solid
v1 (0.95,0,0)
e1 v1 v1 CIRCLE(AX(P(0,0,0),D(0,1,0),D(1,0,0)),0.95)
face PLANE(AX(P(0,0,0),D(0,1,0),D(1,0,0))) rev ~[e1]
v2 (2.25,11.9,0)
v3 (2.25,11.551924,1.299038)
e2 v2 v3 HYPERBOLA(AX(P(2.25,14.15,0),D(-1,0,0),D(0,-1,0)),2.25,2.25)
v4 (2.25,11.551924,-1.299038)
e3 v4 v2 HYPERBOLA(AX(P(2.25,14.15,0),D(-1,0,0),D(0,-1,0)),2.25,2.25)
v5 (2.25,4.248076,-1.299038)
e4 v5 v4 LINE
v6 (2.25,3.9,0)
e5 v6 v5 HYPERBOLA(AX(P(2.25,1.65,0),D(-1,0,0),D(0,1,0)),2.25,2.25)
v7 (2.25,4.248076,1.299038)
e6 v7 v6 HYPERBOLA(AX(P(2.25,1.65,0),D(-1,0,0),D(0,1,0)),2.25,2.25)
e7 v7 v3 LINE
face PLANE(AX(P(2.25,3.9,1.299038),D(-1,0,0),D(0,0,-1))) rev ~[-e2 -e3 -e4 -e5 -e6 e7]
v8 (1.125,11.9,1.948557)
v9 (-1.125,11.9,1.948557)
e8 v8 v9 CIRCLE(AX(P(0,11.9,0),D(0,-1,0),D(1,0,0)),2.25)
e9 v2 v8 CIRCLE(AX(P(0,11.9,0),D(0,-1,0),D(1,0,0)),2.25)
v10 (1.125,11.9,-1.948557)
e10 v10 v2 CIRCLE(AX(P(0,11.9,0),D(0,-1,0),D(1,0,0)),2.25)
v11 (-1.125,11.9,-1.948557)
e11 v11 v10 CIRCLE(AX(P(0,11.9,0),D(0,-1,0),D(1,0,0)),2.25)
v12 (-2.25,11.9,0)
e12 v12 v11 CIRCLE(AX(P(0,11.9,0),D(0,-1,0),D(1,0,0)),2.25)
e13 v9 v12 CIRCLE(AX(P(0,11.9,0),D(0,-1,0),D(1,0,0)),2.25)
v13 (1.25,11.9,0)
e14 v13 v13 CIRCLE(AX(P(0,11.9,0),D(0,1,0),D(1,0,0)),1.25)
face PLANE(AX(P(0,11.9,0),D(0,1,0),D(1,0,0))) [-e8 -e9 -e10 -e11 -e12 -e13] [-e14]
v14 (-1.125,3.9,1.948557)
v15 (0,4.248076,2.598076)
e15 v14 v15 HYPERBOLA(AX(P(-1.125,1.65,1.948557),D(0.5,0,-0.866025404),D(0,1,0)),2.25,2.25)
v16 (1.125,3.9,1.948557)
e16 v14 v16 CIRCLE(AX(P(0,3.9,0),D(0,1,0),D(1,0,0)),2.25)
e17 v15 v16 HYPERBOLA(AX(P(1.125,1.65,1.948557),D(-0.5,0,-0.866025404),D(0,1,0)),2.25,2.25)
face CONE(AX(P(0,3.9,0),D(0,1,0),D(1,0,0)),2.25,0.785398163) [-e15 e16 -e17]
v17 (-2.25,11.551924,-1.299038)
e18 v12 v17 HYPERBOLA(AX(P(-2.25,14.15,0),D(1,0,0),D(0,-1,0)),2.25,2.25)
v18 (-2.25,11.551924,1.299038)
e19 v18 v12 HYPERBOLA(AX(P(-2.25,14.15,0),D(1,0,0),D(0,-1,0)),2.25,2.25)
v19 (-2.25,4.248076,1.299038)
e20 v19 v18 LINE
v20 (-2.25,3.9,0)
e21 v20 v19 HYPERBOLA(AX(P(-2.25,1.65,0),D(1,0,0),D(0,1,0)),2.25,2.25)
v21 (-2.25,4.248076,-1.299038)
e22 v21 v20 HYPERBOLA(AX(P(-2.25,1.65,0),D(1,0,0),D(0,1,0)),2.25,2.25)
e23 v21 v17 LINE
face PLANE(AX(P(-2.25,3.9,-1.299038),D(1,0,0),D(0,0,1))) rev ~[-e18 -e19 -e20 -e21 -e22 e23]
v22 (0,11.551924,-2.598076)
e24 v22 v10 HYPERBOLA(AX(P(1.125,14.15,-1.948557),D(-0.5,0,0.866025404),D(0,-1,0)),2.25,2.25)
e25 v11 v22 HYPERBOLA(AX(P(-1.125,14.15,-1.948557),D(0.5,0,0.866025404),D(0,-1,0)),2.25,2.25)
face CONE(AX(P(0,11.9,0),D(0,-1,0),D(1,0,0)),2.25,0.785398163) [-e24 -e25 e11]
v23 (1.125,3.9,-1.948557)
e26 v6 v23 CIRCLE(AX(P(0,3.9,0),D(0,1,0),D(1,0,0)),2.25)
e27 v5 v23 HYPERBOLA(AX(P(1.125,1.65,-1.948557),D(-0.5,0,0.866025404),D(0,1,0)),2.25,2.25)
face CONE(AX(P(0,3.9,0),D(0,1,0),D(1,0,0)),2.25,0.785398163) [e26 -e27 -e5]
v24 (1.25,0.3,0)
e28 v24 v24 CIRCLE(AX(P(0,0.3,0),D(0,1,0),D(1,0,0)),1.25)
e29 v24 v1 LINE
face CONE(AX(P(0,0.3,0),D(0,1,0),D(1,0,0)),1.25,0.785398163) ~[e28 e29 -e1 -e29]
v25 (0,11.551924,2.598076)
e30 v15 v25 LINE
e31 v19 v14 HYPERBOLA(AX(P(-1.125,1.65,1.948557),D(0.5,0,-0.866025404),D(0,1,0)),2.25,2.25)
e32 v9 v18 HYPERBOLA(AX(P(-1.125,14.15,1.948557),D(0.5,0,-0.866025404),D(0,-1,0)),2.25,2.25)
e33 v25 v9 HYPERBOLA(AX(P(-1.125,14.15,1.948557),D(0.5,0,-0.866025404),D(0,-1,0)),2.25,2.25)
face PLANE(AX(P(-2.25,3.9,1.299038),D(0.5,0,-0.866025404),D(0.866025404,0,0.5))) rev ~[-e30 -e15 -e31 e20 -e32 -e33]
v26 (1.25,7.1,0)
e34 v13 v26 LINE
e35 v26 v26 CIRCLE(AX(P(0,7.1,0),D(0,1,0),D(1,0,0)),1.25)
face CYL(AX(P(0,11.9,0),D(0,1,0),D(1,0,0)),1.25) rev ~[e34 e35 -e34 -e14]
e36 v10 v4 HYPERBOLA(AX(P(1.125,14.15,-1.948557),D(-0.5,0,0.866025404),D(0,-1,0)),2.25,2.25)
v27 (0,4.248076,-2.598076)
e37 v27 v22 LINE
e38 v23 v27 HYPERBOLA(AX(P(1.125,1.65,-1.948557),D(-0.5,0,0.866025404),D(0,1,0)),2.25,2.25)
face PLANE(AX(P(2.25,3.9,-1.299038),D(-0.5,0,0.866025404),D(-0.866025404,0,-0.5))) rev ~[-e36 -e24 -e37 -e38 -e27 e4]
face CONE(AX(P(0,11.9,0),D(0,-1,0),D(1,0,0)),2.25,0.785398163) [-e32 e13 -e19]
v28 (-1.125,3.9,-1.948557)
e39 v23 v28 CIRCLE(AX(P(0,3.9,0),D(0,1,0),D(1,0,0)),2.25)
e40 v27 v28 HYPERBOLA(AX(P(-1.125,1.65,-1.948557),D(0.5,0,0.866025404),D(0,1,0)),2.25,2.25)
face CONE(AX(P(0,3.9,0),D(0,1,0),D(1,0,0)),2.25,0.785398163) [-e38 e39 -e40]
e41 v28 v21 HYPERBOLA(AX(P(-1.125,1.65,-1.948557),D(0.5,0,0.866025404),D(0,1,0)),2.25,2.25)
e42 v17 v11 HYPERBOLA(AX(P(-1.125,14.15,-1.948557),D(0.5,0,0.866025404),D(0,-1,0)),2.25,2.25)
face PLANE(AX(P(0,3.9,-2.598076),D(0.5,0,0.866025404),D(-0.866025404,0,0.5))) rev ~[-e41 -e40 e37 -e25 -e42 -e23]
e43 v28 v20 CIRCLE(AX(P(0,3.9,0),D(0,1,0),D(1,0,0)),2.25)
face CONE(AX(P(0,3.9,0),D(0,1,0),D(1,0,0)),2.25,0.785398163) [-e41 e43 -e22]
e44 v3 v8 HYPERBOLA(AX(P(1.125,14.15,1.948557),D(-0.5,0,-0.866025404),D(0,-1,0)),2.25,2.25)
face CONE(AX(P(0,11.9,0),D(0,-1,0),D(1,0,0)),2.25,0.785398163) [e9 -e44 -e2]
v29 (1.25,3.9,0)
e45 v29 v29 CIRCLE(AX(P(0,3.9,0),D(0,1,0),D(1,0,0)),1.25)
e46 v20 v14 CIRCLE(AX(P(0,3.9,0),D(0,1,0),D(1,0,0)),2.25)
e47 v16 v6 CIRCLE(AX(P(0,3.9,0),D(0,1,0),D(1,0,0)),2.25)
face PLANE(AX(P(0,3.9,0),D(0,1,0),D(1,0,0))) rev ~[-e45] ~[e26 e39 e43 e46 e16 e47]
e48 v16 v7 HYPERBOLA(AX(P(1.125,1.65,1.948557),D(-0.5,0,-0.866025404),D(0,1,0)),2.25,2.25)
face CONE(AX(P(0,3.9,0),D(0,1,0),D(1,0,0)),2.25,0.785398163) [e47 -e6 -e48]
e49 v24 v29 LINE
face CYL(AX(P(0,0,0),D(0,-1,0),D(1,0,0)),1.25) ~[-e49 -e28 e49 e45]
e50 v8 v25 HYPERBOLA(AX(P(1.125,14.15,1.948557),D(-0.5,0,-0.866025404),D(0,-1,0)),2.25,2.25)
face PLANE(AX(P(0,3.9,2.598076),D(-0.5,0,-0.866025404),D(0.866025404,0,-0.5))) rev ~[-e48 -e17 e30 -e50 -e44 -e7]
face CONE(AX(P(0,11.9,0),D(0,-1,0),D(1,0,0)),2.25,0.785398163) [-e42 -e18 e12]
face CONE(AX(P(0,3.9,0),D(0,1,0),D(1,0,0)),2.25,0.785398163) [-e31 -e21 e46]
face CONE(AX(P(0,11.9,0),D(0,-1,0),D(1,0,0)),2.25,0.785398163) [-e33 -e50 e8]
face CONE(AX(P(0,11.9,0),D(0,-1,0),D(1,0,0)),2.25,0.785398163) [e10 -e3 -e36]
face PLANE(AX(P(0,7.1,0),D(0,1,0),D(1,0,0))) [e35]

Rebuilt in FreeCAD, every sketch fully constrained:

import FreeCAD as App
import Part
import Sketcher

V = App.Vector
Q = App.Units.Quantity


def edges_at(feature, points):
    """Names of the edges that pass closest to the given points."""
    edges = feature.Shape.Edges
    near = lambda p: min(range(len(edges)), key=lambda i: edges[i].distToShape(Part.Vertex(*p))[0])
    return sorted({f"Edge{near(p) + 1}" for p in points})

doc = App.newDocument("Part")
body = doc.addObject("PartDesign::Body", "Body")

# Sketch on XZ plane
sketch1 = body.newObject("Sketcher::SketchObject", "Sketch")
sketch1.AttachmentSupport = (doc.getObject("XZ_Plane"), [""])
sketch1.MapMode = "FlatFace"
sketch1.addGeometry(Part.Circle(V(0, 0, 0), V(0, 0, 1), 1.2), False)
sketch1.addConstraint(Sketcher.Constraint("Coincident", 0, 3, -1, 1))
sketch1.addConstraint(Sketcher.Constraint("Diameter", 0, 2.5))
pad1 = body.newObject("PartDesign::Pad", "Pad")
pad1.Profile = sketch1
pad1.Length = 3.9
pad1.Reversed = True

# Sketch on XZ plane
sketch2 = body.newObject("Sketcher::SketchObject", "Sketch001")
sketch2.AttachmentSupport = (doc.getObject("XZ_Plane"), [""])
sketch2.MapMode = "FlatFace"
sketch2.AttachmentOffset = App.Placement(V(0, 0, -3.9), App.Rotation())
sketch2.addGeometry(Part.LineSegment(V(0, 2.6, 0), V(2.2, 1.3, 0)), False)
sketch2.addGeometry(Part.LineSegment(V(2.2, 1.3, 0), V(2.2, -1.3, 0)), False)
sketch2.addGeometry(Part.LineSegment(V(2.2, -1.3, 0), V(0, -2.6, 0)), False)
sketch2.addGeometry(Part.LineSegment(V(0, -2.6, 0), V(-2.2, -1.3, 0)), False)
sketch2.addGeometry(Part.LineSegment(V(-2.2, -1.3, 0), V(-2.2, 1.3, 0)), False)
sketch2.addGeometry(Part.LineSegment(V(-2.2, 1.3, 0), V(0, 2.6, 0)), False)
sketch2.addConstraint(Sketcher.Constraint("Coincident", 0, 2, 1, 1))
sketch2.addConstraint(Sketcher.Constraint("Coincident", 1, 2, 2, 1))
sketch2.addConstraint(Sketcher.Constraint("Coincident", 2, 2, 3, 1))
sketch2.addConstraint(Sketcher.Constraint("Coincident", 3, 2, 4, 1))
sketch2.addConstraint(Sketcher.Constraint("Coincident", 4, 2, 5, 1))
sketch2.addConstraint(Sketcher.Constraint("Coincident", 5, 2, 0, 1))
sketch2.addConstraint(Sketcher.Constraint("Vertical", 1))
sketch2.addConstraint(Sketcher.Constraint("Vertical", 4))
sketch2.addConstraint(Sketcher.Constraint("Symmetric", 0, 2, 3, 2, -1, 1))
sketch2.addConstraint(Sketcher.Constraint("Symmetric", 2, 2, 5, 2, -1, 1))
sketch2.addConstraint(Sketcher.Constraint("PointOnObject", 2, 2, -2))
sketch2.addConstraint(Sketcher.Constraint("Parallel", 2, 5))
sketch2.addConstraint(Sketcher.Constraint("Horizontal", 1, 2, 3, 2))
sketch2.addConstraint(Sketcher.Constraint("Angle", 0, Q("-30 deg")))
sketch2.addConstraint(Sketcher.Constraint("DistanceX", 3, 2, 1, 2, 4.5))
sketch2.addConstraint(Sketcher.Constraint("DistanceY", 1, 2, 1, 1, 2.598076))
pad2 = body.newObject("PartDesign::Pad", "Pad001")
pad2.Profile = sketch2
pad2.Length = 8
pad2.Reversed = True

# Sketch on XZ plane
sketch3 = body.newObject("Sketcher::SketchObject", "Sketch002")
sketch3.AttachmentSupport = (doc.getObject("XZ_Plane"), [""])
sketch3.MapMode = "FlatFace"
sketch3.AttachmentOffset = App.Placement(V(0, 0, -11.9), App.Rotation())
sketch3.addGeometry(Part.Circle(V(0, 0, 0), V(0, 0, 1), 1.2), False)
sketch3.addConstraint(Sketcher.Constraint("Coincident", 0, 3, -1, 1))
sketch3.addConstraint(Sketcher.Constraint("Diameter", 0, 2.5))
pocket1 = body.newObject("PartDesign::Pocket", "Pocket")
pocket1.Profile = sketch3
pocket1.Length = 4.8
pocket1.Reversed = True

# Sketch on XZ plane
sketch4 = body.newObject("Sketcher::SketchObject", "Sketch003")
sketch4.AttachmentSupport = (doc.getObject("XZ_Plane"), [""])
sketch4.MapMode = "FlatFace"
sketch4.AttachmentOffset = App.Placement(V(0, 0, -11.9), App.Rotation())
sketch4.addGeometry(Part.LineSegment(V(-17.5, -17.9, 0), V(-17.5, 17.9, 0)), False)
sketch4.addGeometry(Part.LineSegment(V(-17.5, 17.9, 0), V(17.5, 17.9, 0)), False)
sketch4.addGeometry(Part.LineSegment(V(17.5, 17.9, 0), V(17.5, -17.9, 0)), False)
sketch4.addGeometry(Part.LineSegment(V(17.5, -17.9, 0), V(-17.5, -17.9, 0)), False)
sketch4.addGeometry(Part.Circle(V(0, 0, 0), V(0, 0, 1), 2.2), False)
sketch4.addConstraint(Sketcher.Constraint("Coincident", 0, 2, 1, 1))
sketch4.addConstraint(Sketcher.Constraint("Coincident", 1, 2, 2, 1))
sketch4.addConstraint(Sketcher.Constraint("Coincident", 2, 2, 3, 1))
sketch4.addConstraint(Sketcher.Constraint("Coincident", 3, 2, 0, 1))
sketch4.addConstraint(Sketcher.Constraint("Vertical", 0))
sketch4.addConstraint(Sketcher.Constraint("Horizontal", 1))
sketch4.addConstraint(Sketcher.Constraint("Vertical", 2))
sketch4.addConstraint(Sketcher.Constraint("Horizontal", 3))
sketch4.addConstraint(Sketcher.Constraint("Coincident", 4, 3, -1, 1))
sketch4.addConstraint(Sketcher.Constraint("Symmetric", 0, 2, 2, 2, -1, 1))
sketch4.addConstraint(Sketcher.Constraint("Diameter", 4, 4.5))
sketch4.addConstraint(Sketcher.Constraint("DistanceX", 1, 1, 1, 2, 35.048))
sketch4.addConstraint(Sketcher.Constraint("DistanceY", 0, 1, 0, 2, 35.744))
pocket2 = body.newObject("PartDesign::Pocket", "Pocket001")
pocket2.Profile = sketch4
pocket2.Length = 12.9
pocket2.Reversed = True
pocket2.TaperAngle = 45

# Sketch on XZ plane
sketch5 = body.newObject("Sketcher::SketchObject", "Sketch004")
sketch5.AttachmentSupport = (doc.getObject("XZ_Plane"), [""])
sketch5.MapMode = "FlatFace"
sketch5.AttachmentOffset = App.Placement(V(0, 0, -3.9), App.Rotation())
sketch5.addGeometry(Part.LineSegment(V(-13.6, 14, 0), V(-13.6, -14, 0)), False)
sketch5.addGeometry(Part.LineSegment(V(-13.6, -14, 0), V(13.6, -14, 0)), False)
sketch5.addGeometry(Part.LineSegment(V(13.6, -14, 0), V(13.6, 14, 0)), False)
sketch5.addGeometry(Part.LineSegment(V(13.6, 14, 0), V(-13.6, 14, 0)), False)
sketch5.addGeometry(Part.Circle(V(0, 0, 0), V(0, 0, 1), 2.2), False)
sketch5.addConstraint(Sketcher.Constraint("Coincident", 0, 2, 1, 1))
sketch5.addConstraint(Sketcher.Constraint("Coincident", 1, 2, 2, 1))
sketch5.addConstraint(Sketcher.Constraint("Coincident", 2, 2, 3, 1))
sketch5.addConstraint(Sketcher.Constraint("Coincident", 3, 2, 0, 1))
sketch5.addConstraint(Sketcher.Constraint("Vertical", 0))
sketch5.addConstraint(Sketcher.Constraint("Horizontal", 1))
sketch5.addConstraint(Sketcher.Constraint("Vertical", 2))
sketch5.addConstraint(Sketcher.Constraint("Horizontal", 3))
sketch5.addConstraint(Sketcher.Constraint("Coincident", 4, 3, -1, 1))
sketch5.addConstraint(Sketcher.Constraint("Symmetric", 0, 2, 2, 2, -1, 1))
sketch5.addConstraint(Sketcher.Constraint("Diameter", 4, 4.5))
sketch5.addConstraint(Sketcher.Constraint("DistanceX", 1, 1, 1, 2, 27.248))
sketch5.addConstraint(Sketcher.Constraint("DistanceY", 0, 2, 0, 1, 27.944))
pocket3 = body.newObject("PartDesign::Pocket", "Pocket002")
pocket3.Profile = sketch5
pocket3.Length = 9
pocket3.TaperAngle = 45
doc.recompute()

chamfer = body.newObject("PartDesign::Chamfer", "Chamfer")
chamfer.Base = (pocket3, edges_at(pocket3, [(-1.25, 0, 0)]))
chamfer.Size = 0.3

doc.recompute()
